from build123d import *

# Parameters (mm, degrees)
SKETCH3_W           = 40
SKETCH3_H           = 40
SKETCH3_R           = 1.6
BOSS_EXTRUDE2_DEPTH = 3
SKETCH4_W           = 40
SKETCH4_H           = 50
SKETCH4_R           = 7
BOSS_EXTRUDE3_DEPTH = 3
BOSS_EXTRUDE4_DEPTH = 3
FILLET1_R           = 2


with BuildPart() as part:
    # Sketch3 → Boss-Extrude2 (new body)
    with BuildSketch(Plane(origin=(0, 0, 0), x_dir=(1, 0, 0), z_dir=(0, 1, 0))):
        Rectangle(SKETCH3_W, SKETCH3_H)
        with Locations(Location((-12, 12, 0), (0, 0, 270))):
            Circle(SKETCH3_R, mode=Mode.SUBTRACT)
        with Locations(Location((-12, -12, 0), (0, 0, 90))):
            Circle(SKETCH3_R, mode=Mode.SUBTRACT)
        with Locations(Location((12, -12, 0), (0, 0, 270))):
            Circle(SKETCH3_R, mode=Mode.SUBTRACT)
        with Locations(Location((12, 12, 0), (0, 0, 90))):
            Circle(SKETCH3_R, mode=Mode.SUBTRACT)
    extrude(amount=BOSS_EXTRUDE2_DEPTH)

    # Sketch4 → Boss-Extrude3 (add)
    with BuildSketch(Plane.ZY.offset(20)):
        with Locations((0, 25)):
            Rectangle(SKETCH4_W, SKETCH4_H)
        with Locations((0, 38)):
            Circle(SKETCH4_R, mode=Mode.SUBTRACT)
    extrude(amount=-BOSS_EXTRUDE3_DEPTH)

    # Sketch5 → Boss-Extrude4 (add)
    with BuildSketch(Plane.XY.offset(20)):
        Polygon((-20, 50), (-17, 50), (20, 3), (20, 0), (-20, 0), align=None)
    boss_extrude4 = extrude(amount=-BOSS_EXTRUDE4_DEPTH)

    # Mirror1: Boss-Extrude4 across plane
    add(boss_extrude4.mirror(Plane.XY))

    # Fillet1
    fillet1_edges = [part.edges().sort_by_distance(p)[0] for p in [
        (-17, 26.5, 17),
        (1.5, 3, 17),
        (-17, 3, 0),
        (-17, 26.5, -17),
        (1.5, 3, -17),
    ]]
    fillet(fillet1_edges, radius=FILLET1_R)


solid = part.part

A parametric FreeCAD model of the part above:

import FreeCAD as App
import Part
import Sketcher
from FreeCAD import Vector
Q = App.Units.Quantity


def edges_at(feature, points):
    """Names of the edges that pass closest to the given points."""
    edges = feature.Shape.Edges
    near = lambda p: min(range(len(edges)), key=lambda i: edges[i].distToShape(Part.Vertex(*p))[0])
    return sorted({f"Edge{near(p) + 1}" for p in points})


def add_polygon(sketch, points):
    """Adds a closed chain of lines whose ends are joined by coincident constraints."""
    first, n = sketch.GeometryCount, len(points)
    for a, b in zip(points, points[1:] + points[:1]):
        sketch.addGeometry(Part.LineSegment(App.Vector(*a, 0), App.Vector(*b, 0)), False)
    for i in range(n):
        sketch.addConstraint(Sketcher.Constraint("Coincident", first + i, 2, first + (i + 1) % n, 1))

doc = App.newDocument("Part")
body = doc.addObject("PartDesign::Body", "Body")

sketch1 = body.newObject("Sketcher::SketchObject", "Sketch")
sketch1.AttachmentSupport = (doc.getObject("XZ_Plane"), [""])
sketch1.MapMode = "FlatFace"
add_polygon(sketch1, [(-20, -20), (-20, 20), (20, 20), (20, -20)])
sketch1.addGeometry(Part.Circle(Vector(-12, 12, 0), Vector(0, 0, 1), 1.6), False)
sketch1.addGeometry(Part.Circle(Vector(12, 12, 0), Vector(0, 0, 1), 1.6), False)
sketch1.addGeometry(Part.Circle(Vector(-12, -12, 0), Vector(0, 0, 1), 1.6), False)
sketch1.addGeometry(Part.Circle(Vector(12, -12, 0), Vector(0, 0, 1), 1.6), False)
sketch1.addConstraint(Sketcher.Constraint("Vertical", 0))
sketch1.addConstraint(Sketcher.Constraint("Horizontal", 1))
sketch1.addConstraint(Sketcher.Constraint("Vertical", 2))
sketch1.addConstraint(Sketcher.Constraint("Horizontal", 3))
sketch1.addConstraint(Sketcher.Constraint("Equal", 4, 5))
sketch1.addConstraint(Sketcher.Constraint("Equal", 5, 6))
sketch1.addConstraint(Sketcher.Constraint("Equal", 6, 7))
sketch1.addConstraint(Sketcher.Constraint("Symmetric", 5, 3, 6, 3, -1, 1))
sketch1.addConstraint(Sketcher.Constraint("Symmetric", 4, 3, 7, 3, -1, 1))
sketch1.addConstraint(Sketcher.Constraint("Symmetric", 0, 2, 2, 2, -1, 1))
sketch1.addConstraint(Sketcher.Constraint("Symmetric", 4, 3, 5, 3, -2))
sketch1.addConstraint(Sketcher.Constraint("Equal", 3, 0))
sketch1.addConstraint(Sketcher.Constraint("Diameter", 4, Q("3.2 mm")))
sketch1.addConstraint(Sketcher.Constraint("DistanceX", 1, 1, 1, 2, Q("40 mm")))
sketch1.addConstraint(Sketcher.Constraint("DistanceX", 4, 3, -1, 1, Q("12 mm")))
sketch1.addConstraint(Sketcher.Constraint("DistanceY", -1, 1, 4, 3, Q("12 mm")))
pad1 = body.newObject("PartDesign::Pad", "Pad")
pad1.Profile = sketch1
pad1.Length = 3
pad1.Reversed = True

sketch2 = body.newObject("Sketcher::SketchObject", "Sketch001")
sketch2.AttachmentSupport = (doc.getObject("YZ_Plane"), [""])
sketch2.MapMode = "FlatFace"
sketch2.AttachmentOffset = App.Placement(Vector(0, 0, -20), App.Rotation())
add_polygon(sketch2, [(50, -20), (0, -20), (0, 20), (50, 20)])
sketch2.addGeometry(Part.Circle(Vector(38, 0, 0), Vector(0, 0, 1), 7), False)
sketch2.addConstraint(Sketcher.Constraint("Horizontal", 0))
sketch2.addConstraint(Sketcher.Constraint("Vertical", 1))
sketch2.addConstraint(Sketcher.Constraint("Horizontal", 2))
sketch2.addConstraint(Sketcher.Constraint("Vertical", 3))
sketch2.addConstraint(Sketcher.Constraint("Symmetric", 0, 2, 1, 2, -1, 1))
sketch2.addConstraint(Sketcher.Constraint("PointOnObject", 4, 3, -1))
sketch2.addConstraint(Sketcher.Constraint("Diameter", 4, Q("14 mm")))
sketch2.addConstraint(Sketcher.Constraint("DistanceX", 0, 2, 0, 1, Q("50 mm")))
sketch2.addConstraint(Sketcher.Constraint("DistanceY", 1, 1, 1, 2, Q("40 mm")))
sketch2.addConstraint(Sketcher.Constraint("DistanceX", -1, 1, 4, 3, Q("38 mm")))
pad2 = body.newObject("PartDesign::Pad", "Pad001")
pad2.Profile = sketch2
pad2.Length = 3

sketch3 = body.newObject("Sketcher::SketchObject", "Sketch002")
sketch3.AttachmentSupport = (doc.getObject("XY_Plane"), [""])
sketch3.MapMode = "FlatFace"
sketch3.AttachmentOffset = App.Placement(Vector(0, 0, 20), App.Rotation())
add_polygon(sketch3, [(-17, 50), (-20, 50), (-20, 0), (20, 0), (20, 3)])
sketch3.addConstraint(Sketcher.Constraint("Horizontal", 0))
sketch3.addConstraint(Sketcher.Constraint("Vertical", 1))
sketch3.addConstraint(Sketcher.Constraint("Horizontal", 2))
sketch3.addConstraint(Sketcher.Constraint("Vertical", 3))
sketch3.addConstraint(Sketcher.Constraint("Symmetric", 1, 2, 2, 2, -1, 1))
sketch3.addConstraint(Sketcher.Constraint("Equal", 0, 3))
sketch3.addConstraint(Sketcher.Constraint("DistanceX", 0, 2, 0, 1, Q("3 mm")))
sketch3.addConstraint(Sketcher.Constraint("DistanceX", 2, 1, 2, 2, Q("40 mm")))
sketch3.addConstraint(Sketcher.Constraint("DistanceY", 1, 2, 1, 1, Q("50 mm")))
pad3 = body.newObject("PartDesign::Pad", "Pad002")
pad3.Profile = sketch3
pad3.Length = 3
pad3.Reversed = True
doc.recompute()

mirrored = body.newObject("PartDesign::Mirrored", "Mirrored")
mirrored.Originals = [pad3]
mirrored.MirrorPlane = (doc.getObject("XY_Plane"), [""])
body.Tip = mirrored
doc.recompute()

fillet = body.newObject("PartDesign::Fillet", "Fillet")
fillet.Base = (mirrored, edges_at(mirrored, [
    (-17, 26.5, 17),
    (1.5, 3, 17),
    (-17, 3, 0),
    (-17, 26.5, -17),
    (1.5, 3, -17),
]))
fillet.Radius = 2

doc.recompute()
